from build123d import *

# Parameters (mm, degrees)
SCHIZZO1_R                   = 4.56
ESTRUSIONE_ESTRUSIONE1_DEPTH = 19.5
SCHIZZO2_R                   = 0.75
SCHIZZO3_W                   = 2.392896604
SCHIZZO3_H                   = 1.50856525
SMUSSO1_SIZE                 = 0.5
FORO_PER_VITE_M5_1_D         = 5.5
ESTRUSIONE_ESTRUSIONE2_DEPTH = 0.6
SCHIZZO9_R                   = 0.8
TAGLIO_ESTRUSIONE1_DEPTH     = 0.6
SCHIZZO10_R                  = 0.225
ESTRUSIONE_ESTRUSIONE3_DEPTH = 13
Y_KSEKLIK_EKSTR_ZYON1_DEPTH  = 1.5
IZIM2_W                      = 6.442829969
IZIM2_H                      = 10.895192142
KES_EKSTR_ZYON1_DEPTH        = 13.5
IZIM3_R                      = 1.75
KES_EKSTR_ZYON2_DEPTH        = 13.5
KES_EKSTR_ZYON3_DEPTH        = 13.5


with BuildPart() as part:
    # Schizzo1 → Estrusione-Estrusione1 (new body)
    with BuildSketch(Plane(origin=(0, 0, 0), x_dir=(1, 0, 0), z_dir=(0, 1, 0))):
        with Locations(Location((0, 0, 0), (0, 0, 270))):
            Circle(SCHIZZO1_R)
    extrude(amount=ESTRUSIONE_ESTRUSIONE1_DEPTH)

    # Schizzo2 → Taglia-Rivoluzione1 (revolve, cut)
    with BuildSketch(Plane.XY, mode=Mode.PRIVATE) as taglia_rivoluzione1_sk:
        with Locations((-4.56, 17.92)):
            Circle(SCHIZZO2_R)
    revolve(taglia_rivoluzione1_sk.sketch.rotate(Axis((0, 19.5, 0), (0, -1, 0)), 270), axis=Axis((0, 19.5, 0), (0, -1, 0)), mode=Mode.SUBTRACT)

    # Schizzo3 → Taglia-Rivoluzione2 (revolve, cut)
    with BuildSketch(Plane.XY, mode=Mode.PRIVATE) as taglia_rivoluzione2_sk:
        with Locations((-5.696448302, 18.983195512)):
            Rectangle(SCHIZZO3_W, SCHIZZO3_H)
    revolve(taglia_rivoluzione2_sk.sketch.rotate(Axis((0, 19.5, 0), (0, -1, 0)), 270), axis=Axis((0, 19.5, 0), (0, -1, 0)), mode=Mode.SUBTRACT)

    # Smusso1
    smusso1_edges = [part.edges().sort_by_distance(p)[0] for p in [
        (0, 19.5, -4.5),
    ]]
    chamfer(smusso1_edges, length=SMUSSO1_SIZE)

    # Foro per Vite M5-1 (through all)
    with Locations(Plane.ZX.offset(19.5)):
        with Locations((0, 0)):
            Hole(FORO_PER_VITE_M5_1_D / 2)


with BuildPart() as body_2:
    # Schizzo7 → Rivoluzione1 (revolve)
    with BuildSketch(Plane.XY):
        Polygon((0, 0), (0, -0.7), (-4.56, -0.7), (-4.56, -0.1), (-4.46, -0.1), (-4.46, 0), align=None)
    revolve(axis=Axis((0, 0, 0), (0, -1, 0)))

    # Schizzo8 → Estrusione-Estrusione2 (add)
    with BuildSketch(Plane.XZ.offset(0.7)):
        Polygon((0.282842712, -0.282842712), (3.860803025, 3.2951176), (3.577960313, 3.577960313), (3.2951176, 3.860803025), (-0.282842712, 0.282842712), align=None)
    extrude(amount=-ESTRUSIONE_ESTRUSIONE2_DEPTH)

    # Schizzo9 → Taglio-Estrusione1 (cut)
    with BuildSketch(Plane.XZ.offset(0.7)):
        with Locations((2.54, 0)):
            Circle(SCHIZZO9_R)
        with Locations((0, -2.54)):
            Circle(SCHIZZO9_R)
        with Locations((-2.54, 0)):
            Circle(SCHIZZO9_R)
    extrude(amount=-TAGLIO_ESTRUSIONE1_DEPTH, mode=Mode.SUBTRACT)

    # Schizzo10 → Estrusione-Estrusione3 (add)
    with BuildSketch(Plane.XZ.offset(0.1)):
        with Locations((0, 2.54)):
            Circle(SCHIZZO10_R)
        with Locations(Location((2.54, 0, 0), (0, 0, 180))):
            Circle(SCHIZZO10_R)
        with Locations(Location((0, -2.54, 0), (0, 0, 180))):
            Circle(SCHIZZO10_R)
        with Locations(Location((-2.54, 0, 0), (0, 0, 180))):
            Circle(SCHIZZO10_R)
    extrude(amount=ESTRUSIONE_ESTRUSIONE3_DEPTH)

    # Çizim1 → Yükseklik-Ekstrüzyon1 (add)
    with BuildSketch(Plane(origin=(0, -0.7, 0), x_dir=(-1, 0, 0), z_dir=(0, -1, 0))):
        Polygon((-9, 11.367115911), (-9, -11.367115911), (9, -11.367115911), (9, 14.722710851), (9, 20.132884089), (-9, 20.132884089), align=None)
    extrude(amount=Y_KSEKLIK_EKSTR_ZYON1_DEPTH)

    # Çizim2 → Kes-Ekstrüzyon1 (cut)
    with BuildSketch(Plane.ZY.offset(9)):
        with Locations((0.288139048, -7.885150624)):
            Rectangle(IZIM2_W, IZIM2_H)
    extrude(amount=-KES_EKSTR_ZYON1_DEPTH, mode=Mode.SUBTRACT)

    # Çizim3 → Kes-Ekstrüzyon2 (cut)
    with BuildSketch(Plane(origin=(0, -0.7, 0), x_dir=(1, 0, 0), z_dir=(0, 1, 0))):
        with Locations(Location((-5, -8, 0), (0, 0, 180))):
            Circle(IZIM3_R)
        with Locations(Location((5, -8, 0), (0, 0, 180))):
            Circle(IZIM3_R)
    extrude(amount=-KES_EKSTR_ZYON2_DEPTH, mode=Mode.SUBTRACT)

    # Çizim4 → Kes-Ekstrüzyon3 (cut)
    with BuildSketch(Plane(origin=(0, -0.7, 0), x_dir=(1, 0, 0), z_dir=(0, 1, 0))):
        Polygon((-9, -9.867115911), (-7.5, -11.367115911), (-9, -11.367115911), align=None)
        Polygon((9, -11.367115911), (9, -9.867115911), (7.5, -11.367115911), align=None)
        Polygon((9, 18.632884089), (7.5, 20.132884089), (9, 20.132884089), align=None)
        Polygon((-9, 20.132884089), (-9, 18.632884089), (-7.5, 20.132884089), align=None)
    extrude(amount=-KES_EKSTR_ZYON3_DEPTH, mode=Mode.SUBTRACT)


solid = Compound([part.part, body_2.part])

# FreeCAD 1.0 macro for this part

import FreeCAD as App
import Part
import Sketcher

V = App.Vector
Q = App.Units.Quantity


def edges_at(feature, points):
    """Names of the edges that pass closest to the given points."""
    edges = feature.Shape.Edges
    near = lambda p: min(range(len(edges)), key=lambda i: edges[i].distToShape(Part.Vertex(*p))[0])
    return sorted({f"Edge{near(p) + 1}" for p in points})


def add_polygon(sketch, points):
    """Adds a closed chain of lines whose ends are joined by coincident constraints."""
    first, n = sketch.GeometryCount, len(points)
    for a, b in zip(points, points[1:] + points[:1]):
        sketch.addGeometry(Part.LineSegment(App.Vector(*a, 0), App.Vector(*b, 0)), False)
    for i in range(n):
        sketch.addConstraint(Sketcher.Constraint("Coincident", first + i, 2, first + (i + 1) % n, 1))

doc = App.newDocument("Part")
body = doc.addObject("PartDesign::Body", "Body")

# Sketch on XZ plane
sketch1 = doc.addObject("Sketcher::SketchObject", "Sketch")
body.addObject(sketch1)
sketch1.AttachmentSupport = (doc.XZ_Plane, [""])
sketch1.MapMode = "FlatFace"
sketch1.addGeometry(Part.Circle(V(0, 0, 0), V(0, 0, 1), 4.56), False)
sketch1.addConstraint(Sketcher.Constraint("Coincident", 0, 3, -1, 1))
sketch1.addConstraint(Sketcher.Constraint("Diameter", 0, 9.12))
pad1 = doc.addObject("PartDesign::Pad", "Pad")
body.addObject(pad1)
pad1.Profile = sketch1
pad1.Length = 19.5
pad1.Reversed = True

# Sketch on XY plane
sketch2 = doc.addObject("Sketcher::SketchObject", "Sketch001")
body.addObject(sketch2)
sketch2.AttachmentSupport = (doc.XY_Plane, [""])
sketch2.MapMode = "FlatFace"
sketch2.addGeometry(Part.Circle(V(-4.56, 17.92, 0), V(0, 0, 1), 0.75), False)
sketch2.addConstraint(Sketcher.Constraint("Diameter", 0, 1.5))
sketch2.addConstraint(Sketcher.Constraint("DistanceX", 0, 3, -1, 1, 4.56))
sketch2.addConstraint(Sketcher.Constraint("DistanceY", -1, 1, 0, 3, 17.92))
groove = doc.addObject("PartDesign::Groove", "Groove")
body.addObject(groove)
groove.Profile = sketch2
groove.ReferenceAxis = (sketch2, ["V_Axis"])
groove.Angle = 360

# Sketch on XY plane
sketch3 = doc.addObject("Sketcher::SketchObject", "Sketch002")
body.addObject(sketch3)
sketch3.AttachmentSupport = (doc.XY_Plane, [""])
sketch3.MapMode = "FlatFace"
add_polygon(sketch3, [(-6.892897, 19.737478), (-6.892897, 18.228913), (-4.5, 18.228913), (-4.5, 19.737478)])  # lines 0-3
sketch3.addConstraint(Sketcher.Constraint("Vertical", 0))
sketch3.addConstraint(Sketcher.Constraint("Horizontal", 1))
sketch3.addConstraint(Sketcher.Constraint("Vertical", 2))
sketch3.addConstraint(Sketcher.Constraint("Horizontal", 3))
sketch3.addConstraint(Sketcher.Constraint("DistanceX", 1, 2, -1, 1, 4.5))
sketch3.addConstraint(Sketcher.Constraint("DistanceX", 1, 1, 1, 2, 2.392897))
sketch3.addConstraint(Sketcher.Constraint("DistanceY", 0, 2, 0, 1, 1.508565))
sketch3.addConstraint(Sketcher.Constraint("DistanceY", -1, 1, 2, 2, 19.737478))
groove2 = doc.addObject("PartDesign::Groove", "Groove001")
body.addObject(groove2)
groove2.Profile = sketch3
groove2.ReferenceAxis = (sketch3, ["V_Axis"])
groove2.Angle = 360
doc.recompute()

chamfer = doc.addObject("PartDesign::Chamfer", "Chamfer")
body.addObject(chamfer)
chamfer.Base = (groove2, edges_at(groove2, [(0, 19.5, -4.5)]))
chamfer.Size = 0.5

# Sketch on XZ plane
sketch4 = doc.addObject("Sketcher::SketchObject", "Sketch003")
body.addObject(sketch4)
sketch4.AttachmentSupport = (doc.XZ_Plane, [""])
sketch4.MapMode = "FlatFace"
sketch4.AttachmentOffset = App.Placement(V(0, 0, -19.5), App.Rotation())
sketch4.addGeometry(Part.Circle(V(0, 0, 0), V(0, 0, 1), 2.75), False)
sketch4.addConstraint(Sketcher.Constraint("Coincident", 0, 3, -1, 1))
sketch4.addConstraint(Sketcher.Constraint("Diameter", 0, 5.5))
doc.recompute()
hole = doc.addObject("PartDesign::Hole", "Hole")
body.addObject(hole)
hole.Profile = sketch4
hole.ThreadType = "None"
hole.Diameter = 5.5
hole.DepthType = "ThroughAll"
hole.Reversed = True
body2 = doc.addObject("PartDesign::Body", "Body001")

# Sketch on XY plane
sketch5 = doc.addObject("Sketcher::SketchObject", "Sketch004")
body2.addObject(sketch5)
sketch5.AttachmentSupport = (doc.getObject("XY_Plane001"), [""])
sketch5.MapMode = "FlatFace"
add_polygon(sketch5, [(0, -0.7), (0, 0), (-4.46, 0), (-4.46, -0.1), (-4.56, -0.1), (-4.56, -0.7)])  # lines 0-5
sketch5.addConstraint(Sketcher.Constraint("Vertical", 0))
sketch5.addConstraint(Sketcher.Constraint("Horizontal", 1))
sketch5.addConstraint(Sketcher.Constraint("Vertical", 2))
sketch5.addConstraint(Sketcher.Constraint("Horizontal", 3))
sketch5.addConstraint(Sketcher.Constraint("Vertical", 4))
sketch5.addConstraint(Sketcher.Constraint("Horizontal", 5))
sketch5.addConstraint(Sketcher.Constraint("Coincident", 0, 2, -1, 1))
sketch5.addConstraint(Sketcher.Constraint("Equal", 3, 2))
sketch5.addConstraint(Sketcher.Constraint("DistanceX", 3, 2, 3, 1, 0.1))
sketch5.addConstraint(Sketcher.Constraint("DistanceY", 0, 1, 0, 2, 0.7))
sketch5.addConstraint(Sketcher.Constraint("DistanceX", 1, 2, 1, 1, 4.46))
revolution = doc.addObject("PartDesign::Revolution", "Revolution")
body2.addObject(revolution)
revolution.Profile = sketch5
revolution.ReferenceAxis = (sketch5, ["V_Axis"])
revolution.Angle = 360

# Sketch on XZ plane
sketch6 = doc.addObject("Sketcher::SketchObject", "Sketch005")
body2.addObject(sketch6)
sketch6.AttachmentSupport = (doc.getObject("XZ_Plane001"), [""])
sketch6.MapMode = "FlatFace"
sketch6.AttachmentOffset = App.Placement(V(0, 0, 0.7), App.Rotation())
add_polygon(sketch6, [(0.282843, -0.282843), (3.860803, 3.295118), (3.57796, 3.57796), (3.295118, 3.860803), (-0.282843, 0.282843)])  # lines 0-4
sketch6.addConstraint(Sketcher.Constraint("Symmetric", 3, 2, 4, 2, -1, 1))
sketch6.addConstraint(Sketcher.Constraint("Perpendicular", 0, 1))
sketch6.addConstraint(Sketcher.Constraint("Parallel", 1, 2))
sketch6.addConstraint(Sketcher.Constraint("Perpendicular", 2, 3))
sketch6.addConstraint(Sketcher.Constraint("Perpendicular", 3, 4))
sketch6.addConstraint(Sketcher.Constraint("Equal", 1, 2))
sketch6.addConstraint(Sketcher.Constraint("Angle", 0, Q("45 deg")))
sketch6.addConstraint(Sketcher.Constraint("Distance", 1, 0.4))
sketch6.addConstraint(Sketcher.Constraint("Distance", 0, 5.06))
pad2 = doc.addObject("PartDesign::Pad", "Pad001")
body2.addObject(pad2)
pad2.Profile = sketch6
pad2.Length = 0.6
pad2.Reversed = True

# Sketch on XZ plane
sketch7 = doc.addObject("Sketcher::SketchObject", "Sketch006")
body2.addObject(sketch7)
sketch7.AttachmentSupport = (doc.getObject("XZ_Plane001"), [""])
sketch7.MapMode = "FlatFace"
sketch7.AttachmentOffset = App.Placement(V(0, 0, 0.7), App.Rotation())
sketch7.addGeometry(Part.Circle(V(2.54, 0, 0), V(0, 0, 1), 0.8), False)
sketch7.addGeometry(Part.Circle(V(0, -2.54, 0), V(0, 0, 1), 0.8), False)
sketch7.addGeometry(Part.Circle(V(-2.54, 0, 0), V(0, 0, 1), 0.8), False)
sketch7.addConstraint(Sketcher.Constraint("Equal", 0, 1))
sketch7.addConstraint(Sketcher.Constraint("Equal", 1, 2))
sketch7.addConstraint(Sketcher.Constraint("Symmetric", 0, 3, 2, 3, -1, 1))
sketch7.addConstraint(Sketcher.Constraint("PointOnObject", 0, 3, -1))
sketch7.addConstraint(Sketcher.Constraint("PointOnObject", 1, 3, -2))
sketch7.addConstraint(Sketcher.Constraint("Diameter", 0, 1.6))
sketch7.addConstraint(Sketcher.Constraint("DistanceX", -1, 1, 0, 3, 2.54))
sketch7.addConstraint(Sketcher.Constraint("DistanceY", 1, 3, -1, 1, 2.54))
pocket1 = doc.addObject("PartDesign::Pocket", "Pocket")
body2.addObject(pocket1)
pocket1.Profile = sketch7
pocket1.Length = 0.6

# Sketch on XZ plane
sketch8 = doc.addObject("Sketcher::SketchObject", "Sketch007")
body2.addObject(sketch8)
sketch8.AttachmentSupport = (doc.getObject("XZ_Plane001"), [""])
sketch8.MapMode = "FlatFace"
sketch8.AttachmentOffset = App.Placement(V(0, 0, 0.1), App.Rotation())
sketch8.addGeometry(Part.Circle(V(0, 2.54, 0), V(0, 0, 1), 0.225), False)
sketch8.addGeometry(Part.Circle(V(2.54, 0, 0), V(0, 0, 1), 0.225), False)
sketch8.addGeometry(Part.Circle(V(0, -2.54, 0), V(0, 0, 1), 0.225), False)
sketch8.addGeometry(Part.Circle(V(-2.54, 0, 0), V(0, 0, 1), 0.225), False)
sketch8.addConstraint(Sketcher.Constraint("Equal", 0, 1))
sketch8.addConstraint(Sketcher.Constraint("Equal", 1, 2))
sketch8.addConstraint(Sketcher.Constraint("Equal", 2, 3))
sketch8.addConstraint(Sketcher.Constraint("Symmetric", 0, 3, 2, 3, -1, 1))
sketch8.addConstraint(Sketcher.Constraint("Symmetric", 1, 3, 3, 3, -1, 1))
sketch8.addConstraint(Sketcher.Constraint("PointOnObject", 0, 3, -2))
sketch8.addConstraint(Sketcher.Constraint("PointOnObject", 1, 3, -1))
sketch8.addConstraint(Sketcher.Constraint("Diameter", 0, 0.45))
sketch8.addConstraint(Sketcher.Constraint("DistanceY", -1, 1, 0, 3, 2.54))
sketch8.addConstraint(Sketcher.Constraint("DistanceX", -1, 1, 1, 3, 2.54))
pad3 = doc.addObject("PartDesign::Pad", "Pad002")
body2.addObject(pad3)
pad3.Profile = sketch8
pad3.Length = 13

# Sketch on XZ plane
sketch9 = doc.addObject("Sketcher::SketchObject", "Sketch008")
body2.addObject(sketch9)
sketch9.AttachmentSupport = (doc.getObject("XZ_Plane001"), [""])
sketch9.MapMode = "FlatFace"
sketch9.AttachmentOffset = App.Placement(V(0, 0, 0.7), App.Rotation())
add_polygon(sketch9, [(9, 11.367116), (-9, 11.367116), (-9, -20.132884), (9, -20.132884)])  # lines 0-3
sketch9.addConstraint(Sketcher.Constraint("Horizontal", 0))
sketch9.addConstraint(Sketcher.Constraint("Vertical", 1))
sketch9.addConstraint(Sketcher.Constraint("Horizontal", 2))
sketch9.addConstraint(Sketcher.Constraint("Vertical", 3))
sketch9.addConstraint(Sketcher.Constraint("DistanceX", 0, 2, 0, 1, 18.0))
sketch9.addConstraint(Sketcher.Constraint("DistanceY", 1, 2, 1, 1, 31.5))
sketch9.addConstraint(Sketcher.Constraint("DistanceX", 0, 2, -1, 1, 9.0))
sketch9.addConstraint(Sketcher.Constraint("DistanceY", -1, 1, 0, 2, 11.367116))
pad4 = doc.addObject("PartDesign::Pad", "Pad003")
body2.addObject(pad4)
pad4.Profile = sketch9
pad4.Length = 1.5

# Sketch on YZ plane
sketch10 = doc.addObject("Sketcher::SketchObject", "Sketch009")
body2.addObject(sketch10)
sketch10.AttachmentSupport = (doc.getObject("YZ_Plane001"), [""])
sketch10.MapMode = "FlatFace"
sketch10.AttachmentOffset = App.Placement(V(0, 0, -9), App.Rotation())
add_polygon(sketch10, [(-2.437555, -2.933276), (-13.332747, -2.933276), (-13.332747, 3.509554), (-2.437555, 3.509554)])  # lines 0-3
sketch10.addConstraint(Sketcher.Constraint("Horizontal", 0))
sketch10.addConstraint(Sketcher.Constraint("Vertical", 1))
sketch10.addConstraint(Sketcher.Constraint("Horizontal", 2))
sketch10.addConstraint(Sketcher.Constraint("Vertical", 3))
sketch10.addConstraint(Sketcher.Constraint("DistanceY", 1, 1, 1, 2, 6.44283))
sketch10.addConstraint(Sketcher.Constraint("DistanceX", 0, 2, 0, 1, 10.895192))
sketch10.addConstraint(Sketcher.Constraint("DistanceX", 0, 2, -1, 1, 13.332747))
sketch10.addConstraint(Sketcher.Constraint("DistanceY", 0, 2, -1, 1, 2.933276))
pocket2 = doc.addObject("PartDesign::Pocket", "Pocket001")
body2.addObject(pocket2)
pocket2.Profile = sketch10
pocket2.Length = 13.5
pocket2.Reversed = True

# Sketch on XZ plane
sketch11 = doc.addObject("Sketcher::SketchObject", "Sketch010")
body2.addObject(sketch11)
sketch11.AttachmentSupport = (doc.getObject("XZ_Plane001"), [""])
sketch11.MapMode = "FlatFace"
sketch11.AttachmentOffset = App.Placement(V(0, 0, 0.7), App.Rotation())
sketch11.addGeometry(Part.Circle(V(-5, 8, 0), V(0, 0, 1), 1.75), False)
sketch11.addGeometry(Part.Circle(V(5, 8, 0), V(0, 0, 1), 1.75), False)
sketch11.addConstraint(Sketcher.Constraint("Equal", 0, 1))
sketch11.addConstraint(Sketcher.Constraint("Symmetric", 0, 3, 1, 3, -2))
sketch11.addConstraint(Sketcher.Constraint("Diameter", 0, 3.5))
sketch11.addConstraint(Sketcher.Constraint("DistanceX", 0, 3, -1, 1, 5.0))
sketch11.addConstraint(Sketcher.Constraint("DistanceY", -1, 1, 0, 3, 8.0))
pocket3 = doc.addObject("PartDesign::Pocket", "Pocket002")
body2.addObject(pocket3)
pocket3.Profile = sketch11
pocket3.Length = 13.5
pocket3.Reversed = True

# Sketch on XZ plane
sketch12 = doc.addObject("Sketcher::SketchObject", "Sketch011")
body2.addObject(sketch12)
sketch12.AttachmentSupport = (doc.getObject("XZ_Plane001"), [""])
sketch12.MapMode = "FlatFace"
sketch12.AttachmentOffset = App.Placement(V(0, 0, 0.7), App.Rotation())
add_polygon(sketch12, [(-7.5, 11.367116), (-9, 9.867116), (-9, 11.367116)])  # lines 0-2
add_polygon(sketch12, [(9, 11.367116), (9, 9.867116), (7.5, 11.367116)])  # lines 3-5
add_polygon(sketch12, [(7.5, -20.132884), (9, -18.632884), (9, -20.132884)])  # lines 6-8
add_polygon(sketch12, [(-9, -20.132884), (-9, -18.632884), (-7.5, -20.132884)])  # lines 9-11
sketch12.addConstraint(Sketcher.Constraint("Vertical", 1))
sketch12.addConstraint(Sketcher.Constraint("Horizontal", 2))
sketch12.addConstraint(Sketcher.Constraint("Vertical", 3))
sketch12.addConstraint(Sketcher.Constraint("Horizontal", 5))
sketch12.addConstraint(Sketcher.Constraint("Vertical", 7))
sketch12.addConstraint(Sketcher.Constraint("Horizontal", 8))
sketch12.addConstraint(Sketcher.Constraint("Vertical", 9))
sketch12.addConstraint(Sketcher.Constraint("Horizontal", 11))
sketch12.addConstraint(Sketcher.Constraint("Symmetric", 0, 2, 3, 2, -2))
sketch12.addConstraint(Sketcher.Constraint("Symmetric", 2, 2, 4, 2, -2))
sketch12.addConstraint(Sketcher.Constraint("Symmetric", 6, 2, 9, 2, -2))
sketch12.addConstraint(Sketcher.Constraint("Symmetric", 8, 2, 10, 2, -2))
sketch12.addConstraint(Sketcher.Constraint("Perpendicular", 0, 4))
sketch12.addConstraint(Sketcher.Constraint("Perpendicular", 4, 6))
sketch12.addConstraint(Sketcher.Constraint("Vertical", 5, 2, 6, 2))
sketch12.addConstraint(Sketcher.Constraint("Vertical", 4, 2, 8, 2))
sketch12.addConstraint(Sketcher.Constraint("DistanceX", 2, 1, 2, 2, 1.5))
sketch12.addConstraint(Sketcher.Constraint("DistanceX", 0, 2, -1, 1, 9.0))
sketch12.addConstraint(Sketcher.Constraint("DistanceY", 6, 2, 5, 2, 30.0))
sketch12.addConstraint(Sketcher.Constraint("DistanceY", -1, 1, 0, 2, 9.867116))
pocket4 = doc.addObject("PartDesign::Pocket", "Pocket003")
body2.addObject(pocket4)
pocket4.Profile = sketch12
pocket4.Length = 13.5
pocket4.Reversed = True

doc.recompute()
